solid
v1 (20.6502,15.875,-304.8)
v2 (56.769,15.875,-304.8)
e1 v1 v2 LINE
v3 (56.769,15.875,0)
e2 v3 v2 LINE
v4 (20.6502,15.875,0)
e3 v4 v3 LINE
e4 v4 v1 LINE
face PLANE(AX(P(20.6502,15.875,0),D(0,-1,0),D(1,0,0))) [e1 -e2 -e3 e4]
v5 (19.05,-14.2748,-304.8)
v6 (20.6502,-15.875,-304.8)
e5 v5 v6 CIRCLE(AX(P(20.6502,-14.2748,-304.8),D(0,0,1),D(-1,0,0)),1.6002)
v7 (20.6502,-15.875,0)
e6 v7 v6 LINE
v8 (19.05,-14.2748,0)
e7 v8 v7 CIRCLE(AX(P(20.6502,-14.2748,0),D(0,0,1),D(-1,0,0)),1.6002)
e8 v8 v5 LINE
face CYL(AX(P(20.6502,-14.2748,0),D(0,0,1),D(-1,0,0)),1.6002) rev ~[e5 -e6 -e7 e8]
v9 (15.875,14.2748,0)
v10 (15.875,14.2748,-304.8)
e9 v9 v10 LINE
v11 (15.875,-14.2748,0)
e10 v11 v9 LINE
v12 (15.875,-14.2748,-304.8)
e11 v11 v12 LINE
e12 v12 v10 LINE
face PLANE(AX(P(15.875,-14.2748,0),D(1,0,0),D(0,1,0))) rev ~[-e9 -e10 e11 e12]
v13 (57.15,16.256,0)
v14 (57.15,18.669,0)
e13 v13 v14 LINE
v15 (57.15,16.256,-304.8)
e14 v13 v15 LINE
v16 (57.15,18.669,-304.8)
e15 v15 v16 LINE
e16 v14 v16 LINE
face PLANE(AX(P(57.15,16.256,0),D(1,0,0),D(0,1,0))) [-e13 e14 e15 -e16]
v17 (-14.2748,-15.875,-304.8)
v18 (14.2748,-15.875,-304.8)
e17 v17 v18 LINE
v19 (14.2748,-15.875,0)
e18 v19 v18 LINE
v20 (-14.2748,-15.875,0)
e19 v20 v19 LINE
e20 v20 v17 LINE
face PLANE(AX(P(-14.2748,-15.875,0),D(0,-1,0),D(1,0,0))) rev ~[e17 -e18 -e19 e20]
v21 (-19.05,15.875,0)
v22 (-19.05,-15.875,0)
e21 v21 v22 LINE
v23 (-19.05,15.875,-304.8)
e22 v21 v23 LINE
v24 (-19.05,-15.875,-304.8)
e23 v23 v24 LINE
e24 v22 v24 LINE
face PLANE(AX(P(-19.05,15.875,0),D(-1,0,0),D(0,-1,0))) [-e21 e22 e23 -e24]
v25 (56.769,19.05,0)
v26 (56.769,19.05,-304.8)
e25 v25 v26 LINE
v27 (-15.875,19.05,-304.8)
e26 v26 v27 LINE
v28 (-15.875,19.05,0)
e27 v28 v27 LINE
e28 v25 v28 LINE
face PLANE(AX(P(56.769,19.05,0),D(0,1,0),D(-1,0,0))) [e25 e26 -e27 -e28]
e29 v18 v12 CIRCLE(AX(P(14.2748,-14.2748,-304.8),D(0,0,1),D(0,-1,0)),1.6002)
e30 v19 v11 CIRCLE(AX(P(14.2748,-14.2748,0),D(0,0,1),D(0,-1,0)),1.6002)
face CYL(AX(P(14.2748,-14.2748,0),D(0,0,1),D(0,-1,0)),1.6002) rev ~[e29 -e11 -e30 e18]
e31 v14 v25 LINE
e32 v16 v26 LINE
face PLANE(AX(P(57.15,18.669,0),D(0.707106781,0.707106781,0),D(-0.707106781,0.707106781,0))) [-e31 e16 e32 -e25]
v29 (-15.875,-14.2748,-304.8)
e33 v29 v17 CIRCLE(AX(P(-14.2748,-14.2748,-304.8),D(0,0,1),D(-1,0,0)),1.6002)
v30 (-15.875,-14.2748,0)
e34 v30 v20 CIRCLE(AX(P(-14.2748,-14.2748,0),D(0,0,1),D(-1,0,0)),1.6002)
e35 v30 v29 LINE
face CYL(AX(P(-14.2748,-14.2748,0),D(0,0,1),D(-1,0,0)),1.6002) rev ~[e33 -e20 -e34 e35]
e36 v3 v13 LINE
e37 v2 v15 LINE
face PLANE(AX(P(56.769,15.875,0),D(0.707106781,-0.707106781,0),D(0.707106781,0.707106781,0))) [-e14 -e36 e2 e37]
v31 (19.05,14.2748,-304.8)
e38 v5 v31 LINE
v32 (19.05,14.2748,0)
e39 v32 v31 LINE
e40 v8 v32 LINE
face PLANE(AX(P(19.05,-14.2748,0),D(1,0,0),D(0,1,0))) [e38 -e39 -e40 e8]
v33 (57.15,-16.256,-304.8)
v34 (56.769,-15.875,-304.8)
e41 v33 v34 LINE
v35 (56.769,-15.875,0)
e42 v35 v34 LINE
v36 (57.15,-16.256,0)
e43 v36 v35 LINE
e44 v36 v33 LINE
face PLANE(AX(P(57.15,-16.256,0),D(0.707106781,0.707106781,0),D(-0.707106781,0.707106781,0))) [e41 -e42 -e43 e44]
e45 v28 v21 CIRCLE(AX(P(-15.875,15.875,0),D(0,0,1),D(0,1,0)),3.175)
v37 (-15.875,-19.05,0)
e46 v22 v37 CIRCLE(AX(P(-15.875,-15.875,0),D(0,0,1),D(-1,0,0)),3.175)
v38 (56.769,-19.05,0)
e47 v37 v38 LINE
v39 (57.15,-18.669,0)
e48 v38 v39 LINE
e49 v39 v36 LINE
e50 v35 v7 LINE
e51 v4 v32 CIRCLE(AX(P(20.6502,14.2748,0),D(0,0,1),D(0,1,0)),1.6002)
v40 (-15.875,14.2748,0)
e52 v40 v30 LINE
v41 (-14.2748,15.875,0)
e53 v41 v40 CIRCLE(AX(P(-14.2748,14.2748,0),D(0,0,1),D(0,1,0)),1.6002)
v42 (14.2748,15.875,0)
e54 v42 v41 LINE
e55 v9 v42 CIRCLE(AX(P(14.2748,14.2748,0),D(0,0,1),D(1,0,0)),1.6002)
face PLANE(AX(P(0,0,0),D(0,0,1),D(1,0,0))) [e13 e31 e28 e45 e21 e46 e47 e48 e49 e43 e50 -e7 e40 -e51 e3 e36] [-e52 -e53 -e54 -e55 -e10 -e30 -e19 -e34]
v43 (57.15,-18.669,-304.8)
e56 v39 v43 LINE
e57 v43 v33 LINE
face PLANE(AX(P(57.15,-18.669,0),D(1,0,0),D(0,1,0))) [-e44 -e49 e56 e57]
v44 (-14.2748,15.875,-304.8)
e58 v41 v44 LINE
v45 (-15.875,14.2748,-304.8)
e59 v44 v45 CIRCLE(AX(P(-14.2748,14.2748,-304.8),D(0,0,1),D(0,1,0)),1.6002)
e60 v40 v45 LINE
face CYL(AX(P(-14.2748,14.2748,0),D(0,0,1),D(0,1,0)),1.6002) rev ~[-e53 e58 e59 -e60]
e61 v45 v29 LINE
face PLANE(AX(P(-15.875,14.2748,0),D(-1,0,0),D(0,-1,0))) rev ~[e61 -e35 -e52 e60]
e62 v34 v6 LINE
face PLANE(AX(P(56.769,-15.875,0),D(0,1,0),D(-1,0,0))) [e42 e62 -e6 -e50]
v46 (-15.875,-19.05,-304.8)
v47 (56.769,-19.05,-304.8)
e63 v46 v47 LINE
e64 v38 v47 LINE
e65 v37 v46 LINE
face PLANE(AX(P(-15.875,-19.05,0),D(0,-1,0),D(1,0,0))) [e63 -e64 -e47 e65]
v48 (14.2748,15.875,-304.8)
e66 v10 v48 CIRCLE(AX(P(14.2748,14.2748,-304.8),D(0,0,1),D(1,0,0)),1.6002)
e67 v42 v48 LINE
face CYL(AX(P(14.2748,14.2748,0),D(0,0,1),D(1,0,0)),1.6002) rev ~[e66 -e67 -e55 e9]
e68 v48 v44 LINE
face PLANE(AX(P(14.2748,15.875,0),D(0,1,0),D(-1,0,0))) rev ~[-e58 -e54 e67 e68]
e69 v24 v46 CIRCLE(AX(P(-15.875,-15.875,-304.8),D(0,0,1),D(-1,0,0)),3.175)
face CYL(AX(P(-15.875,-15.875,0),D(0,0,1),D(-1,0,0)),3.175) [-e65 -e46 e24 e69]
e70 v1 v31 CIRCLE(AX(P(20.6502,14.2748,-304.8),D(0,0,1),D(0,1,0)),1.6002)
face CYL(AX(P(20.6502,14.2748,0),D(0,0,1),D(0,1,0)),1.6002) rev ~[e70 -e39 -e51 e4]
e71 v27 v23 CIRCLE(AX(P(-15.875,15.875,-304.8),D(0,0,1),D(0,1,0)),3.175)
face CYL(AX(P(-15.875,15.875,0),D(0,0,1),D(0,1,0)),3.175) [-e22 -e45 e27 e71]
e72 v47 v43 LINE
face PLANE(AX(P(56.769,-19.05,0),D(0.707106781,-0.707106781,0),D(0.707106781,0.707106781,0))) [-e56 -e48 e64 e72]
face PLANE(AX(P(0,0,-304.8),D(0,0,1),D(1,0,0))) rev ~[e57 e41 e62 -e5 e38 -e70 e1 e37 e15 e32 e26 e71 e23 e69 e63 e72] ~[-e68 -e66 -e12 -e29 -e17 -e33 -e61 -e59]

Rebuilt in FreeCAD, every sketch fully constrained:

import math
import FreeCAD as App
import Part
import Sketcher
Q = App.Units.Quantity

doc = App.newDocument("Part")
body = doc.addObject("PartDesign::Body", "Body")

sketch1 = doc.addObject("Sketcher::SketchObject", "Sketch")
body.addObject(sketch1)
sketch1.AttachmentSupport = (doc.XY_Plane, [""])
sketch1.MapMode = "FlatFace"
sketch1.addGeometry([
    Part.ArcOfCircle(Part.Circle(App.Vector(-15.9, -15.9, 0), App.Vector(0, 0, 1), 3.2), math.radians(180), math.radians(270)),
    Part.LineSegment(App.Vector(-15.9, -19.1, 0), App.Vector(56.8, -19.1, 0)),
    Part.LineSegment(App.Vector(56.8, -19.1, 0), App.Vector(57.1, -18.7, 0)),
    Part.LineSegment(App.Vector(57.1, -18.7, 0), App.Vector(57.1, -16.3, 0)),
    Part.LineSegment(App.Vector(57.1, -16.3, 0), App.Vector(56.8, -15.9, 0)),
    Part.LineSegment(App.Vector(56.8, -15.9, 0), App.Vector(20.7, -15.9, 0)),
    Part.ArcOfCircle(Part.Circle(App.Vector(20.7, -14.3, 0), App.Vector(0, 0, 1), 1.6), math.radians(180), math.radians(270)),
    Part.LineSegment(App.Vector(19.1, -14.3, 0), App.Vector(19.1, 14.3, 0)),
    Part.ArcOfCircle(Part.Circle(App.Vector(20.7, 14.3, 0), App.Vector(0, 0, 1), 1.6), math.radians(90), math.radians(180)),
    Part.LineSegment(App.Vector(20.7, 15.9, 0), App.Vector(56.8, 15.9, 0)),
    Part.LineSegment(App.Vector(56.8, 15.9, 0), App.Vector(57.1, 16.3, 0)),
    Part.LineSegment(App.Vector(57.1, 16.3, 0), App.Vector(57.1, 18.7, 0)),
    Part.LineSegment(App.Vector(57.1, 18.7, 0), App.Vector(56.8, 19.1, 0)),
    Part.LineSegment(App.Vector(56.8, 19.1, 0), App.Vector(-15.9, 19.1, 0)),
    Part.ArcOfCircle(Part.Circle(App.Vector(-15.9, 15.9, 0), App.Vector(0, 0, 1), 3.2), math.radians(90), math.radians(180)),
    Part.LineSegment(App.Vector(-19.1, 15.9, 0), App.Vector(-19.1, -15.9, 0)),
    Part.ArcOfCircle(Part.Circle(App.Vector(14.3, -14.3, 0), App.Vector(0, 0, 1), 1.6), math.radians(-90), math.radians(0)),
    Part.LineSegment(App.Vector(14.3, -15.9, 0), App.Vector(-14.3, -15.9, 0)),
    Part.ArcOfCircle(Part.Circle(App.Vector(-14.3, -14.3, 0), App.Vector(0, 0, 1), 1.6), math.radians(180), math.radians(270)),
    Part.LineSegment(App.Vector(-15.9, -14.3, 0), App.Vector(-15.9, 14.3, 0)),
    Part.ArcOfCircle(Part.Circle(App.Vector(-14.3, 14.3, 0), App.Vector(0, 0, 1), 1.6), math.radians(90), math.radians(180)),
    Part.LineSegment(App.Vector(-14.3, 15.9, 0), App.Vector(14.3, 15.9, 0)),
    Part.ArcOfCircle(Part.Circle(App.Vector(14.3, 14.3, 0), App.Vector(0, 0, 1), 1.6), math.radians(0), math.radians(90)),
    Part.LineSegment(App.Vector(15.9, 14.3, 0), App.Vector(15.9, -14.3, 0)),
], False)
sketch1.addConstraint([
    Sketcher.Constraint("Tangent", 0, 2, 1, 1),
    Sketcher.Constraint("Coincident", 1, 2, 2, 1),
    Sketcher.Constraint("Coincident", 2, 2, 3, 1),
    Sketcher.Constraint("Coincident", 3, 2, 4, 1),
    Sketcher.Constraint("Coincident", 4, 2, 5, 1),
    Sketcher.Constraint("Tangent", 5, 2, 6, 2),
    Sketcher.Constraint("Tangent", 6, 1, 7, 1),
    Sketcher.Constraint("Tangent", 7, 2, 8, 2),
    Sketcher.Constraint("Tangent", 8, 1, 9, 1),
    Sketcher.Constraint("Coincident", 9, 2, 10, 1),
    Sketcher.Constraint("Coincident", 10, 2, 11, 1),
    Sketcher.Constraint("Coincident", 11, 2, 12, 1),
    Sketcher.Constraint("Coincident", 12, 2, 13, 1),
    Sketcher.Constraint("Tangent", 13, 2, 14, 1),
    Sketcher.Constraint("Tangent", 14, 2, 15, 1),
    Sketcher.Constraint("Tangent", 15, 2, 0, 1),
    Sketcher.Constraint("Tangent", 16, 1, 17, 1),
    Sketcher.Constraint("Tangent", 17, 2, 18, 2),
    Sketcher.Constraint("Tangent", 18, 1, 19, 1),
    Sketcher.Constraint("Tangent", 19, 2, 20, 2),
    Sketcher.Constraint("Tangent", 20, 1, 21, 1),
    Sketcher.Constraint("Tangent", 21, 2, 22, 2),
    Sketcher.Constraint("Tangent", 22, 1, 23, 1),
    Sketcher.Constraint("Tangent", 23, 2, 16, 2),
    Sketcher.Constraint("Horizontal", 1),
    Sketcher.Constraint("Vertical", 3),
    Sketcher.Constraint("Horizontal", 5),
    Sketcher.Constraint("Vertical", 7),
    Sketcher.Constraint("Horizontal", 9),
    Sketcher.Constraint("Vertical", 11),
    Sketcher.Constraint("Horizontal", 13),
    Sketcher.Constraint("Vertical", 15),
    Sketcher.Constraint("Horizontal", 17),
    Sketcher.Constraint("Vertical", 19),
    Sketcher.Constraint("Horizontal", 21),
    Sketcher.Constraint("Vertical", 23),
    Sketcher.Constraint("Equal", 6, 8),
    Sketcher.Constraint("Equal", 0, 14),
    Sketcher.Constraint("Equal", 8, 16),
    Sketcher.Constraint("Equal", 16, 18),
    Sketcher.Constraint("Equal", 18, 20),
    Sketcher.Constraint("Equal", 20, 22),
    Sketcher.Constraint("Symmetric", 16, 3, 20, 3, -1, 1),
    Sketcher.Constraint("Symmetric", 4, 2, 9, 2, -1),
    Sketcher.Constraint("Symmetric", 3, 2, 10, 2, -1),
    Sketcher.Constraint("Symmetric", 1, 2, 12, 2, -1),
    Sketcher.Constraint("Perpendicular", 2, 4),
    Sketcher.Constraint("Perpendicular", 4, 10),
    Sketcher.Constraint("Perpendicular", 10, 12),
    Sketcher.Constraint("Horizontal", 6, 3, 16, 3),
    Sketcher.Constraint("Horizontal", 0, 3, 4, 2),
    Sketcher.Constraint("Vertical", 1, 2, 4, 2),
    Sketcher.Constraint("Vertical", 13, 2, 18, 1),
    Sketcher.Constraint("Equal", 21, 7),
    Sketcher.Constraint("Radius", 0, Q("0.125 in")),
    Sketcher.Constraint("Radius", 6, Q("0.063 in")),
    Sketcher.Constraint("DistanceX", 1, 1, 1, 2, Q("2.86 in")),
    Sketcher.Constraint("DistanceY", 15, 2, 15, 1, Q("1.25 in")),
    Sketcher.Constraint("DistanceX", 5, 2, 5, 1, Q("1.422 in")),
    Sketcher.Constraint("DistanceY", 3, 1, 3, 2, Q("0.095 in")),
])
pad1 = doc.addObject("PartDesign::Pad", "Pad")
body.addObject(pad1)
pad1.Profile = sketch1
pad1.Length = Q("12 in")
pad1.Reversed = True

doc.recompute()
